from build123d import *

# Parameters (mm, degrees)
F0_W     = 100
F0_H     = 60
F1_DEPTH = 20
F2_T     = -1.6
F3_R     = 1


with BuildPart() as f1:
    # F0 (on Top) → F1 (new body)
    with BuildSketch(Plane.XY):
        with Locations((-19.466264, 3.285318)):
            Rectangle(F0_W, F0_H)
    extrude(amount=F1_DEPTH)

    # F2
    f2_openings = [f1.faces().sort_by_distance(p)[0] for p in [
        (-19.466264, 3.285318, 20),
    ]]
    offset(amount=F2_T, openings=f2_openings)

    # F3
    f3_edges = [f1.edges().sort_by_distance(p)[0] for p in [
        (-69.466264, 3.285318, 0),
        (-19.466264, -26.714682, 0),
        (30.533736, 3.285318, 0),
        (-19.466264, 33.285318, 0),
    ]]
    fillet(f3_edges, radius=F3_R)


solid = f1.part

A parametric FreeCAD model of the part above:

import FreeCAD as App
import Part
import Sketcher
from FreeCAD import Vector


def edges_at(feature, points):
    """Names of the edges that pass closest to the given points."""
    edges = feature.Shape.Edges
    near = lambda p: min(range(len(edges)), key=lambda i: edges[i].distToShape(Part.Vertex(*p))[0])
    return sorted({f"Edge{near(p) + 1}" for p in points})


def faces_at(feature, points):
    """Names of the faces that lie closest to the given points."""
    faces = feature.Shape.Faces
    near = lambda p: min(range(len(faces)), key=lambda i: faces[i].distToShape(Part.Vertex(*p))[0])
    return sorted({f"Face{near(p) + 1}" for p in points})

doc = App.newDocument("Part")
params = doc.addObject("Spreadsheet::Sheet", "Params")
for row, (alias, value) in enumerate([
    ("sketch1_width", "100 mm"),
    ("sketch1_height", "60 mm"),
    ("pad1_length", "20 mm"),
    ("thickness_wall", "1.6 mm"),
    ("fillet_radius", "1 mm"),
], start=1):
    params.set(f"A{row}", alias)
    params.set(f"B{row}", "=" + value)
    params.setAlias(f"B{row}", alias)

body = doc.addObject("PartDesign::Body", "Body")

sketch1 = body.newObject("Sketcher::SketchObject", "Sketch")
sketch1.AttachmentSupport = (doc.getObject("XY_Plane"), [""])
sketch1.MapMode = "FlatFace"
sketch1.addGeometry(Part.LineSegment(Vector(-69, 33, 0), Vector(-69, -27, 0)), False)
sketch1.addGeometry(Part.LineSegment(Vector(-69, -27, 0), Vector(31, -27, 0)), False)
sketch1.addGeometry(Part.LineSegment(Vector(31, -27, 0), Vector(31, 33, 0)), False)
sketch1.addGeometry(Part.LineSegment(Vector(31, 33, 0), Vector(-69, 33, 0)), False)
sketch1.addConstraint(Sketcher.Constraint("Coincident", 0, 2, 1, 1))
sketch1.addConstraint(Sketcher.Constraint("Coincident", 1, 2, 2, 1))
sketch1.addConstraint(Sketcher.Constraint("Coincident", 2, 2, 3, 1))
sketch1.addConstraint(Sketcher.Constraint("Coincident", 3, 2, 0, 1))
sketch1.addConstraint(Sketcher.Constraint("Vertical", 0))
sketch1.addConstraint(Sketcher.Constraint("Horizontal", 1))
sketch1.addConstraint(Sketcher.Constraint("Vertical", 2))
sketch1.addConstraint(Sketcher.Constraint("Horizontal", 3))
sketch1.addConstraint(Sketcher.Constraint("DistanceX", 1, 1, 1, 2, 100.0))
sketch1.addConstraint(Sketcher.Constraint("DistanceY", 0, 2, 0, 1, 60.0))
sketch1.addConstraint(Sketcher.Constraint("DistanceY", 0, 2, -1, 1, 26.714682))
sketch1.addConstraint(Sketcher.Constraint("DistanceX", 0, 2, -1, 1, 69.466264))
sketch1.setExpression("Constraints[8]", "Params.sketch1_width")
sketch1.setExpression("Constraints[9]", "Params.sketch1_height")
pad1 = body.newObject("PartDesign::Pad", "Pad")
pad1.Profile = sketch1
pad1.setExpression("Length", "Params.pad1_length")
doc.recompute()

thickness = body.newObject("PartDesign::Thickness", "Thickness")
thickness.Base = (pad1, faces_at(pad1, [(-19.466, 3.285, 20)]))
thickness.setExpression("Value", "Params.thickness_wall")
thickness.Reversed = True
thickness.Join = "Arc"
doc.recompute()

fillet = body.newObject("PartDesign::Fillet", "Fillet")
fillet.Base = (thickness, edges_at(thickness, [
    (-69.466, 3.285, 0),
    (-19.466, -26.715, 0),
    (30.534, 3.285, 0),
    (-19.466, 33.285, 0),
]))
fillet.setExpression("Radius", "Params.fillet_radius")

doc.recompute()
